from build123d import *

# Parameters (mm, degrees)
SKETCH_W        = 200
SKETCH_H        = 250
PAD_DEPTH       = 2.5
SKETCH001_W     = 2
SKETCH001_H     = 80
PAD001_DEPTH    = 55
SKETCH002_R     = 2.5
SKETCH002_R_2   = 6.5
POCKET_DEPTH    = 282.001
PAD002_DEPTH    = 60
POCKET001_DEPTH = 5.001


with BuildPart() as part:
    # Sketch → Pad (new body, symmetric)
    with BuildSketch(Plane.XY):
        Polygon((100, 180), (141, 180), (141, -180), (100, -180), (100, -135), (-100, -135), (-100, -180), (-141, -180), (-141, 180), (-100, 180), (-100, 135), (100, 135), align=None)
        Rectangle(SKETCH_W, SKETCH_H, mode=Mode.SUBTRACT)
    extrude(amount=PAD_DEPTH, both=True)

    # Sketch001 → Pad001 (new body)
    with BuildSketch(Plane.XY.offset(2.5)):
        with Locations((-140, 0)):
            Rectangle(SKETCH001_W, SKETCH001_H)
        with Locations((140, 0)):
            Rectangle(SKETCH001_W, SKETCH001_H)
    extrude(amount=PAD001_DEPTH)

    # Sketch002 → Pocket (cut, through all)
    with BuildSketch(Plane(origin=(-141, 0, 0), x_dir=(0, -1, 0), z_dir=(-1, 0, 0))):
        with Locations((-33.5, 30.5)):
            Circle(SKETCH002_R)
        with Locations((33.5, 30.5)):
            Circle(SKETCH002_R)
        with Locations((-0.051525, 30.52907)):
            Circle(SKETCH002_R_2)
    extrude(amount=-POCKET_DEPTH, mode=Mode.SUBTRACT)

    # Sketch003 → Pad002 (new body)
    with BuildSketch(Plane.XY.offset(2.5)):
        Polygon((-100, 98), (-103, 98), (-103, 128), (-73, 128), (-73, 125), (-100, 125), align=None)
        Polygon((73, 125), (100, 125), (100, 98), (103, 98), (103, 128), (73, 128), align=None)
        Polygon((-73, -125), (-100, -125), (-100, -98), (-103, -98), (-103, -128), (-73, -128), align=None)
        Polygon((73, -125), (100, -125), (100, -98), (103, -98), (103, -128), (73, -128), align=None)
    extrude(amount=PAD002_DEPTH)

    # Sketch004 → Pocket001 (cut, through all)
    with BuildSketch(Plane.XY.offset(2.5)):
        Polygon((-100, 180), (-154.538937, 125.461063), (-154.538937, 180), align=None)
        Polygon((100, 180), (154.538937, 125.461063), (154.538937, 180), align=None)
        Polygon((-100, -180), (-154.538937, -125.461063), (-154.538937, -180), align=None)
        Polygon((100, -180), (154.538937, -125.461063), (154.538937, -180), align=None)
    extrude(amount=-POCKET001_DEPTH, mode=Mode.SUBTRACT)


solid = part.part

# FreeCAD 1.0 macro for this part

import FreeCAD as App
import Part
import Sketcher
Q = App.Units.Quantity

doc = App.newDocument("Part")
body = doc.addObject("PartDesign::Body", "Body")

# Sketch on XY plane
sketch1 = body.newObject("Sketcher::SketchObject", "Sketch")
sketch1.AttachmentSupport = (doc.getObject("XY_Plane"), [""])
sketch1.MapMode = "FlatFace"
sketch1.addGeometry([
    Part.LineSegment(App.Vector(141, 180, 0), App.Vector(100, 180, 0)),  # 0
    Part.LineSegment(App.Vector(100, 180, 0), App.Vector(100, 135, 0)),  # 1
    Part.LineSegment(App.Vector(100, 135, 0), App.Vector(-100, 135, 0)),  # 2
    Part.LineSegment(App.Vector(-100, 135, 0), App.Vector(-100, 180, 0)),  # 3
    Part.LineSegment(App.Vector(-100, 180, 0), App.Vector(-141, 180, 0)),  # 4
    Part.LineSegment(App.Vector(-141, 180, 0), App.Vector(-141, -180, 0)),  # 5
    Part.LineSegment(App.Vector(-141, -180, 0), App.Vector(-100, -180, 0)),  # 6
    Part.LineSegment(App.Vector(-100, -180, 0), App.Vector(-100, -135, 0)),  # 7
    Part.LineSegment(App.Vector(-100, -135, 0), App.Vector(100, -135, 0)),  # 8
    Part.LineSegment(App.Vector(100, -135, 0), App.Vector(100, -180, 0)),  # 9
    Part.LineSegment(App.Vector(100, -180, 0), App.Vector(141, -180, 0)),  # 10
    Part.LineSegment(App.Vector(141, -180, 0), App.Vector(141, 180, 0)),  # 11
    Part.LineSegment(App.Vector(-100, -125, 0), App.Vector(-100, 125, 0)),  # 12
    Part.LineSegment(App.Vector(-100, 125, 0), App.Vector(100, 125, 0)),  # 13
    Part.LineSegment(App.Vector(100, 125, 0), App.Vector(100, -125, 0)),  # 14
    Part.LineSegment(App.Vector(100, -125, 0), App.Vector(-100, -125, 0)),  # 15
], False)
sketch1.addConstraint([
    Sketcher.Constraint("Coincident", 0, 2, 1, 1),
    Sketcher.Constraint("Coincident", 1, 2, 2, 1),
    Sketcher.Constraint("Coincident", 2, 2, 3, 1),
    Sketcher.Constraint("Coincident", 3, 2, 4, 1),
    Sketcher.Constraint("Coincident", 4, 2, 5, 1),
    Sketcher.Constraint("Coincident", 5, 2, 6, 1),
    Sketcher.Constraint("Coincident", 6, 2, 7, 1),
    Sketcher.Constraint("Coincident", 7, 2, 8, 1),
    Sketcher.Constraint("Coincident", 8, 2, 9, 1),
    Sketcher.Constraint("Coincident", 9, 2, 10, 1),
    Sketcher.Constraint("Coincident", 10, 2, 11, 1),
    Sketcher.Constraint("Coincident", 11, 2, 0, 1),
    Sketcher.Constraint("Coincident", 12, 2, 13, 1),
    Sketcher.Constraint("Coincident", 13, 2, 14, 1),
    Sketcher.Constraint("Coincident", 14, 2, 15, 1),
    Sketcher.Constraint("Coincident", 15, 2, 12, 1),
    Sketcher.Constraint("Horizontal", 0),
    Sketcher.Constraint("Vertical", 1),
    Sketcher.Constraint("Horizontal", 2),
    Sketcher.Constraint("Vertical", 3),
    Sketcher.Constraint("Horizontal", 4),
    Sketcher.Constraint("Vertical", 5),
    Sketcher.Constraint("Horizontal", 6),
    Sketcher.Constraint("Vertical", 7),
    Sketcher.Constraint("Horizontal", 8),
    Sketcher.Constraint("Vertical", 9),
    Sketcher.Constraint("Horizontal", 10),
    Sketcher.Constraint("Vertical", 11),
    Sketcher.Constraint("Vertical", 12),
    Sketcher.Constraint("Horizontal", 13),
    Sketcher.Constraint("Vertical", 14),
    Sketcher.Constraint("Horizontal", 15),
    Sketcher.Constraint("Symmetric", 0, 2, 6, 2, -1, 1),
    Sketcher.Constraint("Symmetric", 2, 2, 8, 2, -1, 1),
    Sketcher.Constraint("Symmetric", 4, 2, 10, 2, -1, 1),
    Sketcher.Constraint("Symmetric", 12, 2, 14, 2, -1, 1),
    Sketcher.Constraint("Symmetric", 0, 2, 3, 2, -2),
    Sketcher.Constraint("Vertical", 7, 2, 12, 2),
    Sketcher.Constraint("DistanceX", 0, 2, 0, 1, Q("41 mm")),
    Sketcher.Constraint("DistanceX", 2, 2, 2, 1, Q("200 mm")),
    Sketcher.Constraint("DistanceY", 1, 2, 1, 1, Q("45 mm")),
    Sketcher.Constraint("DistanceY", 5, 2, 5, 1, Q("360 mm")),
    Sketcher.Constraint("DistanceY", 12, 1, 12, 2, Q("250 mm")),
])
pad1 = body.newObject("PartDesign::Pad", "Pad")
pad1.Profile = sketch1
pad1.Length = 5
pad1.Midplane = True

# Sketch on XY plane
sketch2 = body.newObject("Sketcher::SketchObject", "Sketch001")
sketch2.AttachmentSupport = (doc.getObject("XY_Plane"), [""])
sketch2.MapMode = "FlatFace"
sketch2.AttachmentOffset = App.Placement(App.Vector(0, 0, 2.5), App.Rotation())
sketch2.addGeometry([
    Part.LineSegment(App.Vector(-141, 40, 0), App.Vector(-141, -40, 0)),  # 0
    Part.LineSegment(App.Vector(-141, -40, 0), App.Vector(-139, -40, 0)),  # 1
    Part.LineSegment(App.Vector(-139, -40, 0), App.Vector(-139, 40, 0)),  # 2
    Part.LineSegment(App.Vector(-139, 40, 0), App.Vector(-141, 40, 0)),  # 3
    Part.LineSegment(App.Vector(139, 40, 0), App.Vector(139, -40, 0)),  # 4
    Part.LineSegment(App.Vector(139, -40, 0), App.Vector(141, -40, 0)),  # 5
    Part.LineSegment(App.Vector(141, -40, 0), App.Vector(141, 40, 0)),  # 6
    Part.LineSegment(App.Vector(141, 40, 0), App.Vector(139, 40, 0)),  # 7
], False)
sketch2.addConstraint([
    Sketcher.Constraint("Coincident", 0, 2, 1, 1),
    Sketcher.Constraint("Coincident", 1, 2, 2, 1),
    Sketcher.Constraint("Coincident", 2, 2, 3, 1),
    Sketcher.Constraint("Coincident", 3, 2, 0, 1),
    Sketcher.Constraint("Coincident", 4, 2, 5, 1),
    Sketcher.Constraint("Coincident", 5, 2, 6, 1),
    Sketcher.Constraint("Coincident", 6, 2, 7, 1),
    Sketcher.Constraint("Coincident", 7, 2, 4, 1),
    Sketcher.Constraint("Vertical", 0),
    Sketcher.Constraint("Horizontal", 1),
    Sketcher.Constraint("Vertical", 2),
    Sketcher.Constraint("Horizontal", 3),
    Sketcher.Constraint("Vertical", 4),
    Sketcher.Constraint("Horizontal", 5),
    Sketcher.Constraint("Vertical", 6),
    Sketcher.Constraint("Horizontal", 7),
    Sketcher.Constraint("Symmetric", 2, 2, 4, 2, -1, 1),
    Sketcher.Constraint("Symmetric", 0, 2, 6, 2, -1, 1),
    Sketcher.Constraint("Horizontal", 1, 2, 4, 2),
    Sketcher.Constraint("DistanceX", 1, 1, 1, 2, Q("2 mm")),
    Sketcher.Constraint("DistanceY", 0, 2, 0, 1, Q("80 mm")),
    Sketcher.Constraint("DistanceX", 0, 2, -1, 1, Q("141 mm")),
])
pad2 = body.newObject("PartDesign::Pad", "Pad001")
pad2.Profile = sketch2
pad2.Length = 55

# Sketch on YZ plane
sketch3 = body.newObject("Sketcher::SketchObject", "Sketch002")
sketch3.AttachmentSupport = (doc.getObject("YZ_Plane"), [""])
sketch3.MapMode = "FlatFace"
sketch3.AttachmentOffset = App.Placement(App.Vector(0, 0, -141), App.Rotation())
sketch3.addGeometry([
    Part.Circle(App.Vector(33.5, 30.5, 0), App.Vector(0, 0, 1), 2.5),
    Part.Circle(App.Vector(-33.5, 30.5, 0), App.Vector(0, 0, 1), 2.5),
    Part.Circle(App.Vector(0.051525, 30.52907, 0), App.Vector(0, 0, 1), 6.5),
], False)
sketch3.addConstraint([
    Sketcher.Constraint("Equal", 0, 1),
    Sketcher.Constraint("Symmetric", 0, 3, 1, 3, -2),
    Sketcher.Constraint("Diameter", 0, Q("5 mm")),
    Sketcher.Constraint("Diameter", 2, Q("13 mm")),
    Sketcher.Constraint("DistanceX", 1, 3, 0, 3, Q("67 mm")),
    Sketcher.Constraint("DistanceY", -1, 1, 0, 3, Q("30.5 mm")),
    Sketcher.Constraint("DistanceY", -1, 1, 2, 3, Q("30.52907 mm")),
    Sketcher.Constraint("DistanceX", -1, 1, 2, 3, Q("0.051525 mm")),
])
pocket1 = body.newObject("PartDesign::Pocket", "Pocket")
pocket1.Profile = sketch3
pocket1.Type = "ThroughAll"
pocket1.Reversed = True

# Sketch on XY plane
sketch4 = body.newObject("Sketcher::SketchObject", "Sketch003")
sketch4.AttachmentSupport = (doc.getObject("XY_Plane"), [""])
sketch4.MapMode = "FlatFace"
sketch4.AttachmentOffset = App.Placement(App.Vector(0, 0, 2.5), App.Rotation())
sketch4.addGeometry([
    Part.LineSegment(App.Vector(-103, 98, 0), App.Vector(-100, 98, 0)),  # 0
    Part.LineSegment(App.Vector(-100, 98, 0), App.Vector(-100, 125, 0)),  # 1
    Part.LineSegment(App.Vector(-100, 125, 0), App.Vector(-73, 125, 0)),  # 2
    Part.LineSegment(App.Vector(-73, 125, 0), App.Vector(-73, 128, 0)),  # 3
    Part.LineSegment(App.Vector(-73, 128, 0), App.Vector(-103, 128, 0)),  # 4
    Part.LineSegment(App.Vector(-103, 128, 0), App.Vector(-103, 98, 0)),  # 5
    Part.LineSegment(App.Vector(73, 125, 0), App.Vector(100, 125, 0)),  # 6
    Part.LineSegment(App.Vector(100, 125, 0), App.Vector(100, 98, 0)),  # 7
    Part.LineSegment(App.Vector(100, 98, 0), App.Vector(103, 98, 0)),  # 8
    Part.LineSegment(App.Vector(103, 98, 0), App.Vector(103, 128, 0)),  # 9
    Part.LineSegment(App.Vector(103, 128, 0), App.Vector(73, 128, 0)),  # 10
    Part.LineSegment(App.Vector(73, 128, 0), App.Vector(73, 125, 0)),  # 11
    Part.LineSegment(App.Vector(-73, -125, 0), App.Vector(-100, -125, 0)),  # 12
    Part.LineSegment(App.Vector(-100, -125, 0), App.Vector(-100, -98, 0)),  # 13
    Part.LineSegment(App.Vector(-100, -98, 0), App.Vector(-103, -98, 0)),  # 14
    Part.LineSegment(App.Vector(-103, -98, 0), App.Vector(-103, -128, 0)),  # 15
    Part.LineSegment(App.Vector(-103, -128, 0), App.Vector(-73, -128, 0)),  # 16
    Part.LineSegment(App.Vector(-73, -128, 0), App.Vector(-73, -125, 0)),  # 17
    Part.LineSegment(App.Vector(100, -125, 0), App.Vector(73, -125, 0)),  # 18
    Part.LineSegment(App.Vector(73, -125, 0), App.Vector(73, -128, 0)),  # 19
    Part.LineSegment(App.Vector(73, -128, 0), App.Vector(103, -128, 0)),  # 20
    Part.LineSegment(App.Vector(103, -128, 0), App.Vector(103, -98, 0)),  # 21
    Part.LineSegment(App.Vector(103, -98, 0), App.Vector(100, -98, 0)),  # 22
    Part.LineSegment(App.Vector(100, -98, 0), App.Vector(100, -125, 0)),  # 23
], False)
sketch4.addConstraint([
    Sketcher.Constraint("Coincident", 0, 2, 1, 1),
    Sketcher.Constraint("Coincident", 1, 2, 2, 1),
    Sketcher.Constraint("Coincident", 2, 2, 3, 1),
    Sketcher.Constraint("Coincident", 3, 2, 4, 1),
    Sketcher.Constraint("Coincident", 4, 2, 5, 1),
    Sketcher.Constraint("Coincident", 5, 2, 0, 1),
    Sketcher.Constraint("Coincident", 6, 2, 7, 1),
    Sketcher.Constraint("Coincident", 7, 2, 8, 1),
    Sketcher.Constraint("Coincident", 8, 2, 9, 1),
    Sketcher.Constraint("Coincident", 9, 2, 10, 1),
    Sketcher.Constraint("Coincident", 10, 2, 11, 1),
    Sketcher.Constraint("Coincident", 11, 2, 6, 1),
    Sketcher.Constraint("Coincident", 12, 2, 13, 1),
    Sketcher.Constraint("Coincident", 13, 2, 14, 1),
    Sketcher.Constraint("Coincident", 14, 2, 15, 1),
    Sketcher.Constraint("Coincident", 15, 2, 16, 1),
    Sketcher.Constraint("Coincident", 16, 2, 17, 1),
    Sketcher.Constraint("Coincident", 17, 2, 12, 1),
    Sketcher.Constraint("Coincident", 18, 2, 19, 1),
    Sketcher.Constraint("Coincident", 19, 2, 20, 1),
    Sketcher.Constraint("Coincident", 20, 2, 21, 1),
    Sketcher.Constraint("Coincident", 21, 2, 22, 1),
    Sketcher.Constraint("Coincident", 22, 2, 23, 1),
    Sketcher.Constraint("Coincident", 23, 2, 18, 1),
    Sketcher.Constraint("Horizontal", 0),
    Sketcher.Constraint("Vertical", 1),
    Sketcher.Constraint("Horizontal", 2),
    Sketcher.Constraint("Vertical", 3),
    Sketcher.Constraint("Horizontal", 4),
    Sketcher.Constraint("Vertical", 5),
    Sketcher.Constraint("Horizontal", 6),
    Sketcher.Constraint("Vertical", 7),
    Sketcher.Constraint("Horizontal", 8),
    Sketcher.Constraint("Vertical", 9),
    Sketcher.Constraint("Horizontal", 10),
    Sketcher.Constraint("Vertical", 11),
    Sketcher.Constraint("Horizontal", 12),
    Sketcher.Constraint("Vertical", 13),
    Sketcher.Constraint("Horizontal", 14),
    Sketcher.Constraint("Vertical", 15),
    Sketcher.Constraint("Horizontal", 16),
    Sketcher.Constraint("Vertical", 17),
    Sketcher.Constraint("Horizontal", 18),
    Sketcher.Constraint("Vertical", 19),
    Sketcher.Constraint("Horizontal", 20),
    Sketcher.Constraint("Vertical", 21),
    Sketcher.Constraint("Horizontal", 22),
    Sketcher.Constraint("Vertical", 23),
    Sketcher.Constraint("Symmetric", 6, 2, 12, 2, -1, 1),
    Sketcher.Constraint("Symmetric", 8, 2, 14, 2, -1, 1),
    Sketcher.Constraint("Symmetric", 10, 2, 16, 2, -1, 1),
    Sketcher.Constraint("Symmetric", 2, 2, 18, 2, -1, 1),
    Sketcher.Constraint("Symmetric", 4, 2, 20, 2, -1, 1),
    Sketcher.Constraint("Symmetric", 0, 2, 22, 2, -1, 1),
    Sketcher.Constraint("Symmetric", 1, 2, 6, 2, -2),
    Sketcher.Constraint("Symmetric", 5, 2, 8, 2, -2),
    Sketcher.Constraint("Symmetric", 3, 2, 10, 2, -2),
    Sketcher.Constraint("Equal", 18, 1),
    Sketcher.Constraint("Equal", 22, 3),
    Sketcher.Constraint("DistanceX", 0, 1, 0, 2, Q("3 mm")),
    Sketcher.Constraint("DistanceX", 2, 1, 2, 2, Q("27 mm")),
    Sketcher.Constraint("DistanceX", 0, 2, -1, 1, Q("100 mm")),
    Sketcher.Constraint("DistanceY", -1, 1, 0, 2, Q("98 mm")),
])
pad3 = body.newObject("PartDesign::Pad", "Pad002")
pad3.Profile = sketch4
pad3.Length = 60

# Sketch on XY plane
sketch5 = body.newObject("Sketcher::SketchObject", "Sketch004")
sketch5.AttachmentSupport = (doc.getObject("XY_Plane"), [""])
sketch5.MapMode = "FlatFace"
sketch5.AttachmentOffset = App.Placement(App.Vector(0, 0, 2.5), App.Rotation())
sketch5.addGeometry([
    Part.LineSegment(App.Vector(-154.538937, 125.461063, 0), App.Vector(-100, 180, 0)),  # 0
    Part.LineSegment(App.Vector(-100, 180, 0), App.Vector(-154.538937, 180, 0)),  # 1
    Part.LineSegment(App.Vector(-154.538937, 180, 0), App.Vector(-154.538937, 125.461063, 0)),  # 2
    Part.LineSegment(App.Vector(100, 180, 0), App.Vector(154.538937, 125.461063, 0)),  # 3
    Part.LineSegment(App.Vector(154.538937, 125.461063, 0), App.Vector(154.538937, 180, 0)),  # 4
    Part.LineSegment(App.Vector(154.538937, 180, 0), App.Vector(100, 180, 0)),  # 5
    Part.LineSegment(App.Vector(-100, -180, 0), App.Vector(-154.538937, -125.461063, 0)),  # 6
    Part.LineSegment(App.Vector(-154.538937, -125.461063, 0), App.Vector(-154.538937, -180, 0)),  # 7
    Part.LineSegment(App.Vector(-154.538937, -180, 0), App.Vector(-100, -180, 0)),  # 8
    Part.LineSegment(App.Vector(154.538937, -125.461063, 0), App.Vector(100, -180, 0)),  # 9
    Part.LineSegment(App.Vector(100, -180, 0), App.Vector(154.538937, -180, 0)),  # 10
    Part.LineSegment(App.Vector(154.538937, -180, 0), App.Vector(154.538937, -125.461063, 0)),  # 11
], False)
sketch5.addConstraint([
    Sketcher.Constraint("Coincident", 0, 2, 1, 1),
    Sketcher.Constraint("Coincident", 1, 2, 2, 1),
    Sketcher.Constraint("Coincident", 2, 2, 0, 1),
    Sketcher.Constraint("Coincident", 3, 2, 4, 1),
    Sketcher.Constraint("Coincident", 4, 2, 5, 1),
    Sketcher.Constraint("Coincident", 5, 2, 3, 1),
    Sketcher.Constraint("Coincident", 6, 2, 7, 1),
    Sketcher.Constraint("Coincident", 7, 2, 8, 1),
    Sketcher.Constraint("Coincident", 8, 2, 6, 1),
    Sketcher.Constraint("Coincident", 9, 2, 10, 1),
    Sketcher.Constraint("Coincident", 10, 2, 11, 1),
    Sketcher.Constraint("Coincident", 11, 2, 9, 1),
    Sketcher.Constraint("Horizontal", 1),
    Sketcher.Constraint("Vertical", 2),
    Sketcher.Constraint("Vertical", 4),
    Sketcher.Constraint("Horizontal", 5),
    Sketcher.Constraint("Vertical", 7),
    Sketcher.Constraint("Horizontal", 8),
    Sketcher.Constraint("Horizontal", 10),
    Sketcher.Constraint("Vertical", 11),
    Sketcher.Constraint("Symmetric", 3, 2, 6, 2, -1, 1),
    Sketcher.Constraint("Symmetric", 5, 2, 8, 2, -1, 1),
    Sketcher.Constraint("Symmetric", 0, 2, 9, 2, -1, 1),
    Sketcher.Constraint("Symmetric", 2, 2, 11, 2, -1, 1),
    Sketcher.Constraint("Symmetric", 2, 2, 3, 2, -2),
    Sketcher.Constraint("Symmetric", 0, 2, 5, 2, -2),
    Sketcher.Constraint("Perpendicular", 0, 3),
    Sketcher.Constraint("DistanceX", 0, 2, -1, 1, Q("100 mm")),
    Sketcher.Constraint("DistanceY", -1, 1, 0, 2, Q("180 mm")),
    Sketcher.Constraint("DistanceX", 1, 2, 1, 1, Q("54.538937 mm")),
])
pocket2 = body.newObject("PartDesign::Pocket", "Pocket001")
pocket2.Profile = sketch5
pocket2.Type = "ThroughAll"

doc.recompute()
